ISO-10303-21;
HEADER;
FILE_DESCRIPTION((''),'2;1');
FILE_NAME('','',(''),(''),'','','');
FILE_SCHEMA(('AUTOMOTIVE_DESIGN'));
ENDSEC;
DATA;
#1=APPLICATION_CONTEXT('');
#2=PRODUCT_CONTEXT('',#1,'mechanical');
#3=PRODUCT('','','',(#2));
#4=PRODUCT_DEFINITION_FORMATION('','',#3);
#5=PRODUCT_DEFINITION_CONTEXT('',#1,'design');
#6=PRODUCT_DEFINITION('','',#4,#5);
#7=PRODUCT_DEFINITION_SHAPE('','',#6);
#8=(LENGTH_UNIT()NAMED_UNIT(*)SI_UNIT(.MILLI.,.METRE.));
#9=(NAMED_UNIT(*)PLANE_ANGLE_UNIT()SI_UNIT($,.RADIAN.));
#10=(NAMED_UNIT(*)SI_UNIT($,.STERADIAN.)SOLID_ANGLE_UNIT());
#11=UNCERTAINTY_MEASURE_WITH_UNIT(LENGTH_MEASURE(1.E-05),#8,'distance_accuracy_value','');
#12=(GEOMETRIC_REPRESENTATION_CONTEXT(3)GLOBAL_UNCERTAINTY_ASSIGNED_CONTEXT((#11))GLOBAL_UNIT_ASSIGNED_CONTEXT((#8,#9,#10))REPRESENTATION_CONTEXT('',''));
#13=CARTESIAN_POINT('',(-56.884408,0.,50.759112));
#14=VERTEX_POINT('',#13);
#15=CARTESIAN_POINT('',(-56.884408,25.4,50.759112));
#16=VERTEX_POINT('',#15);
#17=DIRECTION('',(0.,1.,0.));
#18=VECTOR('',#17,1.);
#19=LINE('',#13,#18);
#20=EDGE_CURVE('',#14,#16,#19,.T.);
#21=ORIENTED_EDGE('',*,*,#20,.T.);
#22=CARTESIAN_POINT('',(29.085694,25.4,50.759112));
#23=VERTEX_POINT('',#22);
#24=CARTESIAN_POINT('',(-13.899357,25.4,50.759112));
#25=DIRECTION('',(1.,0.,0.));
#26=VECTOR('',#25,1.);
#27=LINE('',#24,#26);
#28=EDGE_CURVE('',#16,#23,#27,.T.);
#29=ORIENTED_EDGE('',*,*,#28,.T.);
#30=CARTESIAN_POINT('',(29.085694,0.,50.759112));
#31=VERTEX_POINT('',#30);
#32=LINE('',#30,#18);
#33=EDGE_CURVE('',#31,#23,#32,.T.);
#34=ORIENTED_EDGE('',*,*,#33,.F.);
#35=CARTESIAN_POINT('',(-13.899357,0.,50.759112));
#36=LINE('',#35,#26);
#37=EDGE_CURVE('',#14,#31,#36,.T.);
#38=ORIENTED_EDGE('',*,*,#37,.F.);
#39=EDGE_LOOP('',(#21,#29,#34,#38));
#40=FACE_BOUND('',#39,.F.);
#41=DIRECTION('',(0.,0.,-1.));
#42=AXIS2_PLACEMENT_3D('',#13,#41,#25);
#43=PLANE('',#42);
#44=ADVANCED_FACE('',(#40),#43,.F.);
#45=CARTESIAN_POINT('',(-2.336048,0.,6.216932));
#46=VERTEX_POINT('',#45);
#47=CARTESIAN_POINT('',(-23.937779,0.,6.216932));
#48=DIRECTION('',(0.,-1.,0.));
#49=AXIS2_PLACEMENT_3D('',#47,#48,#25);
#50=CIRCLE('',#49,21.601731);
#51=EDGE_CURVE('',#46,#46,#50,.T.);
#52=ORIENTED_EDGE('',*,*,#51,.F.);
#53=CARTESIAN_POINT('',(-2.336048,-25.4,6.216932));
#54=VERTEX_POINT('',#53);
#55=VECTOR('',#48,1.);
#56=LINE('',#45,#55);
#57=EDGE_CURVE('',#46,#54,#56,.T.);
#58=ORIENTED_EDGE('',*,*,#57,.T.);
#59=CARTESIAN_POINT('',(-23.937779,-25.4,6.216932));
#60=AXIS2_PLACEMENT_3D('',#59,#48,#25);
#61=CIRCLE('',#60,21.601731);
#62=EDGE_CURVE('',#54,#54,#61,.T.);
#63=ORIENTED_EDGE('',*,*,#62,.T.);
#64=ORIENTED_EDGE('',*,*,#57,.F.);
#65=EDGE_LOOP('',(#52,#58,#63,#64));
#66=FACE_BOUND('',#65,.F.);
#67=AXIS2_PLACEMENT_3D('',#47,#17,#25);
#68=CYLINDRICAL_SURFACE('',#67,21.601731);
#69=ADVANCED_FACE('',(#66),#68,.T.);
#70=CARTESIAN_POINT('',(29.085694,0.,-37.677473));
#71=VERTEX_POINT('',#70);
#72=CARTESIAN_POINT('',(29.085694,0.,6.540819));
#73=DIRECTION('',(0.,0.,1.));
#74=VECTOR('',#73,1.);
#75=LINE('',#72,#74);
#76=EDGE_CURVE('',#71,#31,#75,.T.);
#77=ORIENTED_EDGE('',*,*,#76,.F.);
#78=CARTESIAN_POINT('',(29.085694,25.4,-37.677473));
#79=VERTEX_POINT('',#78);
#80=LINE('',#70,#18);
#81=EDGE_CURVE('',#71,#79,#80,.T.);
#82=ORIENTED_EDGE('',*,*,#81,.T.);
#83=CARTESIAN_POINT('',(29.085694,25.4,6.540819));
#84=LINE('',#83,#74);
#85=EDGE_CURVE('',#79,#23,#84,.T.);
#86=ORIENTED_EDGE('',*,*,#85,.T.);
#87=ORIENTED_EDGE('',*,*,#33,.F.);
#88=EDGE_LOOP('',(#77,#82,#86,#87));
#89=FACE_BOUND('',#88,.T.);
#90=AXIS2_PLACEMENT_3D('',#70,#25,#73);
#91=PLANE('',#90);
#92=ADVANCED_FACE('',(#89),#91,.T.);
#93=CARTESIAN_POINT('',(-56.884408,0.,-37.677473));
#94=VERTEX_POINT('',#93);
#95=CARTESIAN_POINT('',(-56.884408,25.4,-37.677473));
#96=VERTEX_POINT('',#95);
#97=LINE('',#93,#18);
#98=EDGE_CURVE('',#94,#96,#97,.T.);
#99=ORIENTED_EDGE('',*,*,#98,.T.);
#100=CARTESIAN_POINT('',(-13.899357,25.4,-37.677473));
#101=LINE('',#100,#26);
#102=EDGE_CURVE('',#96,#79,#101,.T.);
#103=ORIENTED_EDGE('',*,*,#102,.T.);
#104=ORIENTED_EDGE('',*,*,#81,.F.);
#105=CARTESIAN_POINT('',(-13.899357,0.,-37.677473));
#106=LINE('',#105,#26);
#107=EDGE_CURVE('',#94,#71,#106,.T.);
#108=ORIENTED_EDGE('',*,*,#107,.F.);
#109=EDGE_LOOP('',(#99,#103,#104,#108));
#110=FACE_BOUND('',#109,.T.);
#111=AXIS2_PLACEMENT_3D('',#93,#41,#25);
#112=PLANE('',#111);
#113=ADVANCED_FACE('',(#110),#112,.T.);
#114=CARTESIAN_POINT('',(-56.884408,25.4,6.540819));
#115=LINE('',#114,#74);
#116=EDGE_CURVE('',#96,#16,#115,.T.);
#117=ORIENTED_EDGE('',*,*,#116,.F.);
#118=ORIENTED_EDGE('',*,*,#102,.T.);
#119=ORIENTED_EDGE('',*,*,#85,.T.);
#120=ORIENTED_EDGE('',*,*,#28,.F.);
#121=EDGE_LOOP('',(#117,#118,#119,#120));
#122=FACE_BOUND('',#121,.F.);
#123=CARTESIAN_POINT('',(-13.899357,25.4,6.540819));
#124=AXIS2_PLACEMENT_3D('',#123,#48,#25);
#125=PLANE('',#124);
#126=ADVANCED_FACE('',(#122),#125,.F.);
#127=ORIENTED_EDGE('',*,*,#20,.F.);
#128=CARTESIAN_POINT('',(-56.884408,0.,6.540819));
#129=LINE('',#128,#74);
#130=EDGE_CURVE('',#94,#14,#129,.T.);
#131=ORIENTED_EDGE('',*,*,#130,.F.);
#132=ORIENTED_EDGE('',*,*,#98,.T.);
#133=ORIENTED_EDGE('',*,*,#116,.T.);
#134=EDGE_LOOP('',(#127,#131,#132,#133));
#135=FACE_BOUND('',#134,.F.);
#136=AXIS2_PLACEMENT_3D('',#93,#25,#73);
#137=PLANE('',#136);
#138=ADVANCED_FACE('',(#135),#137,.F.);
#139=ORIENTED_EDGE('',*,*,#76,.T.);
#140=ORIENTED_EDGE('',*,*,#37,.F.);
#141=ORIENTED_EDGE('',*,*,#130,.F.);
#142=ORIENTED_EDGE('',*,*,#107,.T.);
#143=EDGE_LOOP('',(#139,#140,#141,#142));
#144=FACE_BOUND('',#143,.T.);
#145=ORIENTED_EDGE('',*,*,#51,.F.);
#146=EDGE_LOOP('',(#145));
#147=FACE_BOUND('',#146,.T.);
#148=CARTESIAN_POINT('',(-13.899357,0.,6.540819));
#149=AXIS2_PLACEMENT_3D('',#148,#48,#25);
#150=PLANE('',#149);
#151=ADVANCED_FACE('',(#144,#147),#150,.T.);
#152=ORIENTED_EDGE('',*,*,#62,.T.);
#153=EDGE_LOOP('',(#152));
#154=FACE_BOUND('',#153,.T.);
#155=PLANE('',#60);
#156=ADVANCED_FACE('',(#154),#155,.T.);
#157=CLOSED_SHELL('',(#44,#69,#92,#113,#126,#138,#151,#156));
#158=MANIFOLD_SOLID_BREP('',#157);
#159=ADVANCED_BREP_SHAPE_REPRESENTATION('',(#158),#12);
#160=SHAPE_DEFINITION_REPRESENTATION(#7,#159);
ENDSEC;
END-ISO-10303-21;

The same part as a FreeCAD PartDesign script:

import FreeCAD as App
import Part
import Sketcher
Q = App.Units.Quantity


def add_polygon(sketch, points):
    """Adds a closed chain of lines whose ends are joined by coincident constraints."""
    first, n = sketch.GeometryCount, len(points)
    for a, b in zip(points, points[1:] + points[:1]):
        sketch.addGeometry(Part.LineSegment(App.Vector(*a, 0), App.Vector(*b, 0)), False)
    for i in range(n):
        sketch.addConstraint(Sketcher.Constraint("Coincident", first + i, 2, first + (i + 1) % n, 1))

doc = App.newDocument("Part")
body = doc.addObject("PartDesign::Body", "Body")

sketch1 = doc.addObject("Sketcher::SketchObject", "Sketch")
body.addObject(sketch1)
sketch1.AttachmentSupport = (doc.XZ_Plane, [""])
sketch1.MapMode = "FlatFace"
add_polygon(sketch1, [(-57, 51), (-57, -38), (29, -38), (29, 51)])
sketch1.addConstraint(Sketcher.Constraint("Vertical", 0))
sketch1.addConstraint(Sketcher.Constraint("Horizontal", 1))
sketch1.addConstraint(Sketcher.Constraint("Vertical", 2))
sketch1.addConstraint(Sketcher.Constraint("Horizontal", 3))
sketch1.addConstraint(Sketcher.Constraint("DistanceX", 1, 1, 1, 2, Q("85.970102 mm")))
sketch1.addConstraint(Sketcher.Constraint("DistanceY", 0, 2, 0, 1, Q("88.436585 mm")))
sketch1.addConstraint(Sketcher.Constraint("DistanceY", -1, 1, 2, 2, Q("50.759112 mm")))
sketch1.addConstraint(Sketcher.Constraint("DistanceX", 0, 2, -1, 1, Q("56.884408 mm")))
pad1 = doc.addObject("PartDesign::Pad", "Pad")
body.addObject(pad1)
pad1.Profile = sketch1
pad1.Length = Q("1 in")
pad1.Reversed = True

sketch2 = doc.addObject("Sketcher::SketchObject", "Sketch001")
body.addObject(sketch2)
sketch2.AttachmentSupport = (doc.XZ_Plane, [""])
sketch2.MapMode = "FlatFace"
sketch2.addGeometry(Part.Circle(App.Vector(-24, 6, 0), App.Vector(0, 0, 1), 22), False)
sketch2.addConstraint(Sketcher.Constraint("Diameter", 0, Q("43.203462 mm")))
sketch2.addConstraint(Sketcher.Constraint("DistanceX", 0, 3, -1, 1, Q("23.937779 mm")))
sketch2.addConstraint(Sketcher.Constraint("DistanceY", -1, 1, 0, 3, Q("6.216932 mm")))
pad2 = doc.addObject("PartDesign::Pad", "Pad001")
body.addObject(pad2)
pad2.Profile = sketch2
pad2.Length = Q("1 in")

doc.recompute()
